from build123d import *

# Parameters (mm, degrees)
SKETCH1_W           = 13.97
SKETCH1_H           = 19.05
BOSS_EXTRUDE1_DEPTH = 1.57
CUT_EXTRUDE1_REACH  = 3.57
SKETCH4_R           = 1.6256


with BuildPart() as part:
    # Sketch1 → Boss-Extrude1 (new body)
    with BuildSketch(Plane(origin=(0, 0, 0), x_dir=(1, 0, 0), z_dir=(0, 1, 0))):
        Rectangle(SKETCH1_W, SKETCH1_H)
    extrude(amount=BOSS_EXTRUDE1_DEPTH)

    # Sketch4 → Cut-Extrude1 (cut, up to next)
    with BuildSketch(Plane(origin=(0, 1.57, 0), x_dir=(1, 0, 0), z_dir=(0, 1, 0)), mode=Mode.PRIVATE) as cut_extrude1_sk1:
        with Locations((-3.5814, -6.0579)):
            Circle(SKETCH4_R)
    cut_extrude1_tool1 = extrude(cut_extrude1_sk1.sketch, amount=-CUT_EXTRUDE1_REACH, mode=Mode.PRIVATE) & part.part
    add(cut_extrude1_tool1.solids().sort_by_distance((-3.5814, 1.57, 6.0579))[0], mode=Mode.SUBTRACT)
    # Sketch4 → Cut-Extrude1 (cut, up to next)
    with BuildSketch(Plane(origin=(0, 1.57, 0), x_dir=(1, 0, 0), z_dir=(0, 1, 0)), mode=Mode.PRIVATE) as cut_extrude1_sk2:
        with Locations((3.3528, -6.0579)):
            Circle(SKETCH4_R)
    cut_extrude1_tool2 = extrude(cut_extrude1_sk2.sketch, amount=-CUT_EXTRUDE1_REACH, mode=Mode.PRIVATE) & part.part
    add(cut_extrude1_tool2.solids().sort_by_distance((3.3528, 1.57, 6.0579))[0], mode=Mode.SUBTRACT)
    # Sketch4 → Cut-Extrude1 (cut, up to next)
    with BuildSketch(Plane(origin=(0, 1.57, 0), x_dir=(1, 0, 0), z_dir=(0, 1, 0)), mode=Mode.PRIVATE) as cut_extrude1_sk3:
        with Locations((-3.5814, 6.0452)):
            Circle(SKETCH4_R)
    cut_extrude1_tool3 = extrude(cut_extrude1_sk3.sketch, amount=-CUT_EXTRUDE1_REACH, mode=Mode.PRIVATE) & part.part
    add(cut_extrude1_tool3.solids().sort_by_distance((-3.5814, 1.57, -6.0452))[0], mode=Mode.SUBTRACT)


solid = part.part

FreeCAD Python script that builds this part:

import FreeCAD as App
import Part
import Sketcher
Q = App.Units.Quantity


def add_polygon(sketch, points):
    """Adds a closed chain of lines whose ends are joined by coincident constraints."""
    first, n = sketch.GeometryCount, len(points)
    for a, b in zip(points, points[1:] + points[:1]):
        sketch.addGeometry(Part.LineSegment(App.Vector(*a, 0), App.Vector(*b, 0)), False)
    for i in range(n):
        sketch.addConstraint(Sketcher.Constraint("Coincident", first + i, 2, first + (i + 1) % n, 1))

doc = App.newDocument("Part")
body = doc.addObject("PartDesign::Body", "Body")

# Sketch on XZ plane
sketch1 = body.newObject("Sketcher::SketchObject", "Sketch")
sketch1.AttachmentSupport = (doc.getObject("XZ_Plane"), [""])
sketch1.MapMode = "FlatFace"
add_polygon(sketch1, [(-7, -10), (-7, 10), (7, 10), (7, -10)])  # lines 0-3
sketch1.addConstraint(Sketcher.Constraint("Vertical", 0))
sketch1.addConstraint(Sketcher.Constraint("Horizontal", 1))
sketch1.addConstraint(Sketcher.Constraint("Vertical", 2))
sketch1.addConstraint(Sketcher.Constraint("Horizontal", 3))
sketch1.addConstraint(Sketcher.Constraint("Symmetric", 0, 2, 2, 2, -1, 1))
sketch1.addConstraint(Sketcher.Constraint("DistanceX", 1, 1, 1, 2, Q("0.55 in")))
sketch1.addConstraint(Sketcher.Constraint("DistanceY", 0, 1, 0, 2, Q("0.75 in")))
pad1 = body.newObject("PartDesign::Pad", "Pad")
pad1.Profile = sketch1
pad1.Length = 1.57
pad1.Reversed = True

# Sketch on XZ plane
sketch2 = body.newObject("Sketcher::SketchObject", "Sketch001")
sketch2.AttachmentSupport = (doc.getObject("XZ_Plane"), [""])
sketch2.MapMode = "FlatFace"
sketch2.AttachmentOffset = App.Placement(App.Vector(0, 0, -1.57), App.Rotation())
sketch2.addGeometry(Part.Circle(App.Vector(-3.6, 6.1, 0), App.Vector(0, 0, 1), 1.6), False)
sketch2.addConstraint(Sketcher.Constraint("Diameter", 0, Q("0.128 in")))
sketch2.addConstraint(Sketcher.Constraint("DistanceX", 0, 3, -1, 1, Q("0.141 in")))
sketch2.addConstraint(Sketcher.Constraint("DistanceY", -1, 1, 0, 3, Q("0.2385 in")))
pocket1 = body.newObject("PartDesign::Pocket", "Pocket")
pocket1.Profile = sketch2
pocket1.Type = "UpToFirst"
pocket1.Reversed = True

# Sketch on XZ plane
sketch3 = body.newObject("Sketcher::SketchObject", "Sketch002")
sketch3.AttachmentSupport = (doc.getObject("XZ_Plane"), [""])
sketch3.MapMode = "FlatFace"
sketch3.AttachmentOffset = App.Placement(App.Vector(0, 0, -1.57), App.Rotation())
sketch3.addGeometry(Part.Circle(App.Vector(3.4, 6.1, 0), App.Vector(0, 0, 1), 1.6), False)
sketch3.addConstraint(Sketcher.Constraint("Diameter", 0, Q("0.128 in")))
sketch3.addConstraint(Sketcher.Constraint("DistanceX", -1, 1, 0, 3, Q("0.132 in")))
sketch3.addConstraint(Sketcher.Constraint("DistanceY", -1, 1, 0, 3, Q("0.2385 in")))
pocket2 = body.newObject("PartDesign::Pocket", "Pocket001")
pocket2.Profile = sketch3
pocket2.Type = "UpToFirst"
pocket2.Reversed = True

# Sketch on XZ plane
sketch4 = body.newObject("Sketcher::SketchObject", "Sketch003")
sketch4.AttachmentSupport = (doc.getObject("XZ_Plane"), [""])
sketch4.MapMode = "FlatFace"
sketch4.AttachmentOffset = App.Placement(App.Vector(0, 0, -1.57), App.Rotation())
sketch4.addGeometry(Part.Circle(App.Vector(-3.6, -6, 0), App.Vector(0, 0, 1), 1.6), False)
sketch4.addConstraint(Sketcher.Constraint("Diameter", 0, Q("0.128 in")))
sketch4.addConstraint(Sketcher.Constraint("DistanceX", 0, 3, -1, 1, Q("0.141 in")))
sketch4.addConstraint(Sketcher.Constraint("DistanceY", 0, 3, -1, 1, Q("0.238 in")))
pocket3 = body.newObject("PartDesign::Pocket", "Pocket002")
pocket3.Profile = sketch4
pocket3.Type = "UpToFirst"
pocket3.Reversed = True

doc.recompute()
